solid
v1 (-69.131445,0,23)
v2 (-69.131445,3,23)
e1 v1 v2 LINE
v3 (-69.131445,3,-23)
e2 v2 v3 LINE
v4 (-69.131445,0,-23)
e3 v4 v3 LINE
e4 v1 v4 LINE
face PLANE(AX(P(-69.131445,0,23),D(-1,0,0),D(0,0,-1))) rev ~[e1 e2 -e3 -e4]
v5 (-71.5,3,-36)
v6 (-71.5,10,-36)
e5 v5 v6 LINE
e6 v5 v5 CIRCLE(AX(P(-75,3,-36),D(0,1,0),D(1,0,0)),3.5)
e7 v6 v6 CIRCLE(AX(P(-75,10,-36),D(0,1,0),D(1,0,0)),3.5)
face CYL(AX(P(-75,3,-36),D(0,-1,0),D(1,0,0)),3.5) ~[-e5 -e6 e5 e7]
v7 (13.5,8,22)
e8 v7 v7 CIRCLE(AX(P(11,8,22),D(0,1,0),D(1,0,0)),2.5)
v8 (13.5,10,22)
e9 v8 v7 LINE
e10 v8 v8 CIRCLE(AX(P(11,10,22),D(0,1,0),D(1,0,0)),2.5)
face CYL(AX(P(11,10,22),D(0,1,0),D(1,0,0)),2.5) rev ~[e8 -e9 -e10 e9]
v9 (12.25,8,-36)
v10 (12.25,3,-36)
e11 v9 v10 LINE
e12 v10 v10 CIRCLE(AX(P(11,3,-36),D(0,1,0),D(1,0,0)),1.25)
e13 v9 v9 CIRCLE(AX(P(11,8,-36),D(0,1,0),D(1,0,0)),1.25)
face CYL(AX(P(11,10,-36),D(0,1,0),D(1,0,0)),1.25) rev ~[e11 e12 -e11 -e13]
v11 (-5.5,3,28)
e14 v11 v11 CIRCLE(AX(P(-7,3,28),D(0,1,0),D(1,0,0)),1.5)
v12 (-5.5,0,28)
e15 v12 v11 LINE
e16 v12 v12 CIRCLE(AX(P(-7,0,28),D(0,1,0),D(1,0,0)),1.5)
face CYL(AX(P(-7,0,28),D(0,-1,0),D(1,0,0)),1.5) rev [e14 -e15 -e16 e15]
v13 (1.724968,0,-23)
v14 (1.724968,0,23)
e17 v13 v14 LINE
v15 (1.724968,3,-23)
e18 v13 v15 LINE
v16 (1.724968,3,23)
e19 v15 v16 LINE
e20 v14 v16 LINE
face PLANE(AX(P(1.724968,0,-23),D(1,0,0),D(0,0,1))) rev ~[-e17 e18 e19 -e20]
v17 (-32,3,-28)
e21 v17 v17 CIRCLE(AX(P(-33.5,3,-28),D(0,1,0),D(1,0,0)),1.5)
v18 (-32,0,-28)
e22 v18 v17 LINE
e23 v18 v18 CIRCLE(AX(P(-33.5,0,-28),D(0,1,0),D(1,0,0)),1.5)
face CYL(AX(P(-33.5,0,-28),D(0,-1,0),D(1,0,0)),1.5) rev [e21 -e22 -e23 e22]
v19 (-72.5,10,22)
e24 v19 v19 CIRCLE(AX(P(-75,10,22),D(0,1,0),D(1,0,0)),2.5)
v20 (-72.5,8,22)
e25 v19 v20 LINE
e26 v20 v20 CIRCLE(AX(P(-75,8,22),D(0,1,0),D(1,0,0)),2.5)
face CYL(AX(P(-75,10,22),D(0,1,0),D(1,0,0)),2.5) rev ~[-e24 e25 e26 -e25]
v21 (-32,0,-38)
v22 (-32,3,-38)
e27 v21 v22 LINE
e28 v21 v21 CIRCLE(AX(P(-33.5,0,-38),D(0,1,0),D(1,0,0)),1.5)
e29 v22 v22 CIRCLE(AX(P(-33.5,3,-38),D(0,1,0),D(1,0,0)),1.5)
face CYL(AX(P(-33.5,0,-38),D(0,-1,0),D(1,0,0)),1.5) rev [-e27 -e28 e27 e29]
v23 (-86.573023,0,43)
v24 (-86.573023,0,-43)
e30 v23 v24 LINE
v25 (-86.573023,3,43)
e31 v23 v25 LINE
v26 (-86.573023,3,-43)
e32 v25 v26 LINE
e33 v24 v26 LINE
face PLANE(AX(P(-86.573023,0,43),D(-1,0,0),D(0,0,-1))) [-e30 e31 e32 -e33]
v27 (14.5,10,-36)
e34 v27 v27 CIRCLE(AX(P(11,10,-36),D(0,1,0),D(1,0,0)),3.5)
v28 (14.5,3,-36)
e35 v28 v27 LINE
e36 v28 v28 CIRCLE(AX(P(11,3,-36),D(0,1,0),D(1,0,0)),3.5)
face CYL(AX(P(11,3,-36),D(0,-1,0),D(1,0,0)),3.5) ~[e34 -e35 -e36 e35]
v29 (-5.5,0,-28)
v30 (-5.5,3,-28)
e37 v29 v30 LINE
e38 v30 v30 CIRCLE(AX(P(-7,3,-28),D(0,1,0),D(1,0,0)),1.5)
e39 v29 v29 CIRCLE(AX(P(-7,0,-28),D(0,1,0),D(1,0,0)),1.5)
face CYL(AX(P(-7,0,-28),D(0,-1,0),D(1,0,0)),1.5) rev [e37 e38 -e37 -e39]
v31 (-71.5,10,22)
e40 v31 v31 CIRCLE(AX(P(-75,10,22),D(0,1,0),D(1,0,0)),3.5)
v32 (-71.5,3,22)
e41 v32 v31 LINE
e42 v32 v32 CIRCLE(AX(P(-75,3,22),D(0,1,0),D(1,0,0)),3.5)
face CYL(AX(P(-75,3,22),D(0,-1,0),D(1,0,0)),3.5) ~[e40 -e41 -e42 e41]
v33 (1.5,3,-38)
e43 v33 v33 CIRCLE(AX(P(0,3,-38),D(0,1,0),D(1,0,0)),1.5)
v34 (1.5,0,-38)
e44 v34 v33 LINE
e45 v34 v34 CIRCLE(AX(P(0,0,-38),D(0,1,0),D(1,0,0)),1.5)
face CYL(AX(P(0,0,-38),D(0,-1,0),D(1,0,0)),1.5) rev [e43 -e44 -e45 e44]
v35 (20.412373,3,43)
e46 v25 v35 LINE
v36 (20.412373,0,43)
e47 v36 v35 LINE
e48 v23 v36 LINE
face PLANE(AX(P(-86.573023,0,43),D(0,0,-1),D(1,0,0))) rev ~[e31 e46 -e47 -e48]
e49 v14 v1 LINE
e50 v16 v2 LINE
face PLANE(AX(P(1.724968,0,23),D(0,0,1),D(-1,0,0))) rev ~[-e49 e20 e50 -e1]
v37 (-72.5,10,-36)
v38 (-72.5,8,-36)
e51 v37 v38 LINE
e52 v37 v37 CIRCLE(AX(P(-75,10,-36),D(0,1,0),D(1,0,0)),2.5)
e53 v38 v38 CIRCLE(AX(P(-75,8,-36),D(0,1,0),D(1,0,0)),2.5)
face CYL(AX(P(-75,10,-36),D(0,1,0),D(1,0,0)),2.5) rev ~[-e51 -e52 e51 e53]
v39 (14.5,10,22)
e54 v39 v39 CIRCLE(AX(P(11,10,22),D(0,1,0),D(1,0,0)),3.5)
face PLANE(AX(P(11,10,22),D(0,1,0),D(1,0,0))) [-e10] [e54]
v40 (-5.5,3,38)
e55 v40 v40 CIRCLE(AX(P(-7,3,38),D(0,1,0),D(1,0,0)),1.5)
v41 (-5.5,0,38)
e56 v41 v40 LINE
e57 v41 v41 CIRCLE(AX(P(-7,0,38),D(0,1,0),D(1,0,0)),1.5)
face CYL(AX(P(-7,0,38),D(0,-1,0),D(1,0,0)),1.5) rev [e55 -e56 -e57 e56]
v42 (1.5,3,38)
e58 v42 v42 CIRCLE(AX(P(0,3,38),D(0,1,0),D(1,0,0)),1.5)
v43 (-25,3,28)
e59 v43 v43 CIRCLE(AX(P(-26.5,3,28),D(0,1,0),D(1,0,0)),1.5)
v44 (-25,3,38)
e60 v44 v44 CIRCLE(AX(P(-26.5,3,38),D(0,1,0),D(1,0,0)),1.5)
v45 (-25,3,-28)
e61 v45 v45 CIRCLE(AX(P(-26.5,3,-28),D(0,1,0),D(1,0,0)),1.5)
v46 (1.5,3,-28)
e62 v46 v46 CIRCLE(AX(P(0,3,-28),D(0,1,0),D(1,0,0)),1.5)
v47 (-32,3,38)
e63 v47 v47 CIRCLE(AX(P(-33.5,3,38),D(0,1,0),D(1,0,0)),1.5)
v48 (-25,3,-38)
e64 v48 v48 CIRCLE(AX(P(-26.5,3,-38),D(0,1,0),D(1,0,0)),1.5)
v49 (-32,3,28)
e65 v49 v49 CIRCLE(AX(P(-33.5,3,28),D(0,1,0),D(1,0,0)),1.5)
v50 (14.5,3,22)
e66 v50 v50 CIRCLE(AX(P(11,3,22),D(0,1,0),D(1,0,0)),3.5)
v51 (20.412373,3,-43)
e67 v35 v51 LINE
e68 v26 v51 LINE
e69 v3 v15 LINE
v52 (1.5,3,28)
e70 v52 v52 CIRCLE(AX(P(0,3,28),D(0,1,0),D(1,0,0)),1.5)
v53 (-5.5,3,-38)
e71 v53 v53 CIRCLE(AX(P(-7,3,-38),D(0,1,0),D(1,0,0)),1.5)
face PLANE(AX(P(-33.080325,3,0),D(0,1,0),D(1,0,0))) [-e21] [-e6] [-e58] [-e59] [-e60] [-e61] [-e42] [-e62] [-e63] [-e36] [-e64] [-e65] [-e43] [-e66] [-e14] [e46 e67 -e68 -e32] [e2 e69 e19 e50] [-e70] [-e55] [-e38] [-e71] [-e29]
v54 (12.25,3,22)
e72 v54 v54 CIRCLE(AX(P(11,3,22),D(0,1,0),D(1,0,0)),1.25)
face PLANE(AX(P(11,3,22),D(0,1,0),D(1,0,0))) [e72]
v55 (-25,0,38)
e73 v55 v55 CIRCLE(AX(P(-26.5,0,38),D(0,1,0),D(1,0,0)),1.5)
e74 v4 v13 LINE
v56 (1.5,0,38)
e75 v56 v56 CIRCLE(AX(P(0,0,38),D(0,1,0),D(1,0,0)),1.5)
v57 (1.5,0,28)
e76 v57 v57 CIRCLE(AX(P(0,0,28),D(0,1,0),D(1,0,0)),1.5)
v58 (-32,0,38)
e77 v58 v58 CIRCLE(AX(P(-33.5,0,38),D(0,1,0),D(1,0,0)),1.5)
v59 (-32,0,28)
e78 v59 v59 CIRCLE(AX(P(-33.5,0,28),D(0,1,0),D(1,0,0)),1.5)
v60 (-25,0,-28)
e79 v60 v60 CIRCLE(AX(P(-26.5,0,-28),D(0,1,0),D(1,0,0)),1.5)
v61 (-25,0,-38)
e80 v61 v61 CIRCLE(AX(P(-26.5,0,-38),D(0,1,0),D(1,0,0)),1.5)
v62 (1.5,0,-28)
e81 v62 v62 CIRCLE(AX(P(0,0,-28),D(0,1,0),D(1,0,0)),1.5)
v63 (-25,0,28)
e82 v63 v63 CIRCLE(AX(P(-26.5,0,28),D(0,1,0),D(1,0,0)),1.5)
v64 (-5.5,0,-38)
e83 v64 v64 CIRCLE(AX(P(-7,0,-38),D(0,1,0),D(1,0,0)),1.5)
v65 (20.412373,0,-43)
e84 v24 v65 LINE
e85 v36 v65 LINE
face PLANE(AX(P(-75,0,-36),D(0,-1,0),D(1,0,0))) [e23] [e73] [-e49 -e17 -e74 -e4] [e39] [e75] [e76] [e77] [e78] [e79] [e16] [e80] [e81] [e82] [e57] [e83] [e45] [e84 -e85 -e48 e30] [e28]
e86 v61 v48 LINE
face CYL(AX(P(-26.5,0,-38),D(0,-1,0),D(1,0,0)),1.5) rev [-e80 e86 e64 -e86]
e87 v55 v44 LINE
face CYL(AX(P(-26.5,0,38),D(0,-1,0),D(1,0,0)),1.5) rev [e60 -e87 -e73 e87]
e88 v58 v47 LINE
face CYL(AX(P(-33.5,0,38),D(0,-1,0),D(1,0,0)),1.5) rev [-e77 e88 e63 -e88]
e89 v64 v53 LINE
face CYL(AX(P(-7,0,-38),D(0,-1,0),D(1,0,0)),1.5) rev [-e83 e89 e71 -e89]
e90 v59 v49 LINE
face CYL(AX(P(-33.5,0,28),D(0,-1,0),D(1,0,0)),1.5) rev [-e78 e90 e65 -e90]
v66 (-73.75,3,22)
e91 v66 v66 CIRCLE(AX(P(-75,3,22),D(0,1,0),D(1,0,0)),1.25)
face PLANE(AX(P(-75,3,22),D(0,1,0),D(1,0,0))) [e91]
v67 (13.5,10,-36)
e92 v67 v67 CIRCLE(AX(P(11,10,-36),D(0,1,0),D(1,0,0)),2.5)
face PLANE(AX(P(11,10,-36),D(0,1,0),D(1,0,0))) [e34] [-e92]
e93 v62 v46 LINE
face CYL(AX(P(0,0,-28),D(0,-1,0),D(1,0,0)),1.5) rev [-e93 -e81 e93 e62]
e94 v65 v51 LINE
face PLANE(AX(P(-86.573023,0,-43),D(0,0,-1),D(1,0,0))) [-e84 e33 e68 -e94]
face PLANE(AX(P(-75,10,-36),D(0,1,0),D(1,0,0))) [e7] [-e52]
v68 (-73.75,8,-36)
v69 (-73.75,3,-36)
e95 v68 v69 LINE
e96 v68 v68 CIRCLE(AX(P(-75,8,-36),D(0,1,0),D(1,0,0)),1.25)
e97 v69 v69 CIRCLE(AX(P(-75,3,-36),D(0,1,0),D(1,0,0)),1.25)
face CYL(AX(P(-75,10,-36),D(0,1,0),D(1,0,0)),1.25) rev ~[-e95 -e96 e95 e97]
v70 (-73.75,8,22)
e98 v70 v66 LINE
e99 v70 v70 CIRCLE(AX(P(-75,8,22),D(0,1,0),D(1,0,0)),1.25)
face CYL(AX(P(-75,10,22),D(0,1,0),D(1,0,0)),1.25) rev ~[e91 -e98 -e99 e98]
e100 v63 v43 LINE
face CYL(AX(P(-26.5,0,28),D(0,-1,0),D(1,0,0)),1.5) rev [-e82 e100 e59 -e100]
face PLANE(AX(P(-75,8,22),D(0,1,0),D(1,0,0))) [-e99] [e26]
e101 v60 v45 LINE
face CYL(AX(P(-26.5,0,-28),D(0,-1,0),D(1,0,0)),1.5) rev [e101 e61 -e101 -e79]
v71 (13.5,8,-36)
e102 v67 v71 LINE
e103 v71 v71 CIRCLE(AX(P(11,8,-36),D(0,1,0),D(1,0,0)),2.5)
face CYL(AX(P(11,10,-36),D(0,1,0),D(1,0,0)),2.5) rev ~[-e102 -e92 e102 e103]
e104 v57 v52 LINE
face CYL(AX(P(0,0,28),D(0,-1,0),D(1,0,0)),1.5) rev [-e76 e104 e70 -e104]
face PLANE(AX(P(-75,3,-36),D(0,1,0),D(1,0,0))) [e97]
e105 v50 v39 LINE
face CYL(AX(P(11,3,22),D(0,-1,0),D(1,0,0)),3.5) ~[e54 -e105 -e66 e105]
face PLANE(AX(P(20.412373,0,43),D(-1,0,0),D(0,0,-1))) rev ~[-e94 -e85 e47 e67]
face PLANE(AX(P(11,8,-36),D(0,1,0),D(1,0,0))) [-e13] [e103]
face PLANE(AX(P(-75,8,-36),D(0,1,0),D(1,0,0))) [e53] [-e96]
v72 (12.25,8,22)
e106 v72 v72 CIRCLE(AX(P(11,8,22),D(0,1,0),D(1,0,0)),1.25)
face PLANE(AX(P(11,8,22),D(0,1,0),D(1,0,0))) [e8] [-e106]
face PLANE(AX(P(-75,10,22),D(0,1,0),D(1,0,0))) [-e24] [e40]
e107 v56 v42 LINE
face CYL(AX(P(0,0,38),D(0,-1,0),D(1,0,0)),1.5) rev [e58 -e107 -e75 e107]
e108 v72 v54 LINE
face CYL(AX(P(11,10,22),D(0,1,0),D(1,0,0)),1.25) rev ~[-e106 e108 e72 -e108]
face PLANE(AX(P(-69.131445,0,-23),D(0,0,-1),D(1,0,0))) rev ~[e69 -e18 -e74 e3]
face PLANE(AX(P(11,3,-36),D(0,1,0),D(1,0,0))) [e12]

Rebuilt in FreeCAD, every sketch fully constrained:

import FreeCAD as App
import Part
import Sketcher

V = App.Vector
Q = App.Units.Quantity


def add_polygon(sketch, points):
    """Adds a closed chain of lines whose ends are joined by coincident constraints."""
    first, n = sketch.GeometryCount, len(points)
    for a, b in zip(points, points[1:] + points[:1]):
        sketch.addGeometry(Part.LineSegment(App.Vector(*a, 0), App.Vector(*b, 0)), False)
    for i in range(n):
        sketch.addConstraint(Sketcher.Constraint("Coincident", first + i, 2, first + (i + 1) % n, 1))

doc = App.newDocument("Part")
body = doc.addObject("PartDesign::Body", "Body")

sketch1 = body.newObject("Sketcher::SketchObject", "Sketch")
sketch1.AttachmentSupport = (doc.getObject("XZ_Plane"), [""])
sketch1.MapMode = "FlatFace"
add_polygon(sketch1, [(-86.573023, -43), (-86.573023, 43), (20.412373, 43), (20.412373, -43)])
sketch1.addGeometry(Part.Circle(V(-75, 22, 0), V(0, 0, 1), 3.5), False)
sketch1.addGeometry(Part.Circle(V(-33.5, 38, 0), V(0, 0, 1), 1.5), False)
sketch1.addGeometry(Part.Circle(V(-33.5, 28, 0), V(0, 0, 1), 1.5), False)
sketch1.addGeometry(Part.Circle(V(-26.5, 38, 0), V(0, 0, 1), 1.5), False)
sketch1.addGeometry(Part.Circle(V(-26.5, 28, 0), V(0, 0, 1), 1.5), False)
sketch1.addGeometry(Part.Circle(V(-7, 38, 0), V(0, 0, 1), 1.5), False)
sketch1.addGeometry(Part.Circle(V(0, 38, 0), V(0, 0, 1), 1.5), False)
sketch1.addGeometry(Part.Circle(V(-7, 28, 0), V(0, 0, 1), 1.5), False)
sketch1.addGeometry(Part.Circle(V(0, 28, 0), V(0, 0, 1), 1.5), False)
sketch1.addGeometry(Part.Circle(V(11, 22, 0), V(0, 0, 1), 3.5), False)
add_polygon(sketch1, [(-69.131445, -23), (1.724968, -23), (1.724968, 23), (-69.131445, 23)])
sketch1.addGeometry(Part.Circle(V(-75, -36, 0), V(0, 0, 1), 3.5), False)
sketch1.addGeometry(Part.Circle(V(-33.5, -28, 0), V(0, 0, 1), 1.5), False)
sketch1.addGeometry(Part.Circle(V(-33.5, -38, 0), V(0, 0, 1), 1.5), False)
sketch1.addGeometry(Part.Circle(V(-26.5, -28, 0), V(0, 0, 1), 1.5), False)
sketch1.addGeometry(Part.Circle(V(-26.5, -38, 0), V(0, 0, 1), 1.5), False)
sketch1.addGeometry(Part.Circle(V(-7, -28, 0), V(0, 0, 1), 1.5), False)
sketch1.addGeometry(Part.Circle(V(0, -28, 0), V(0, 0, 1), 1.5), False)
sketch1.addGeometry(Part.Circle(V(-7, -38, 0), V(0, 0, 1), 1.5), False)
sketch1.addGeometry(Part.Circle(V(0, -38, 0), V(0, 0, 1), 1.5), False)
sketch1.addGeometry(Part.Circle(V(11, -36, 0), V(0, 0, 1), 3.5), False)
sketch1.addConstraint([
    Sketcher.Constraint("Vertical", 0),
    Sketcher.Constraint("Horizontal", 1),
    Sketcher.Constraint("Vertical", 2),
    Sketcher.Constraint("Horizontal", 3),
    Sketcher.Constraint("Horizontal", 14),
    Sketcher.Constraint("Vertical", 15),
    Sketcher.Constraint("Horizontal", 16),
    Sketcher.Constraint("Vertical", 17),
    Sketcher.Constraint("Equal", 5, 6),
    Sketcher.Constraint("Equal", 6, 7),
    Sketcher.Constraint("Equal", 7, 8),
    Sketcher.Constraint("Equal", 8, 9),
    Sketcher.Constraint("Equal", 9, 10),
    Sketcher.Constraint("Equal", 10, 11),
    Sketcher.Constraint("Equal", 11, 12),
    Sketcher.Constraint("Equal", 4, 13),
    Sketcher.Constraint("Equal", 13, 18),
    Sketcher.Constraint("Equal", 12, 19),
    Sketcher.Constraint("Equal", 19, 20),
    Sketcher.Constraint("Equal", 20, 21),
    Sketcher.Constraint("Equal", 21, 22),
    Sketcher.Constraint("Equal", 22, 23),
    Sketcher.Constraint("Equal", 23, 24),
    Sketcher.Constraint("Equal", 24, 25),
    Sketcher.Constraint("Equal", 25, 26),
    Sketcher.Constraint("Equal", 18, 27),
    Sketcher.Constraint("Symmetric", 12, 3, 24, 3, -1, 1),
    Sketcher.Constraint("Symmetric", 10, 3, 26, 3, -1, 1),
    Sketcher.Constraint("Symmetric", 6, 3, 19, 3, -1),
    Sketcher.Constraint("Symmetric", 5, 3, 20, 3, -1),
    Sketcher.Constraint("Symmetric", 8, 3, 21, 3, -1),
    Sketcher.Constraint("Symmetric", 7, 3, 22, 3, -1),
    Sketcher.Constraint("Symmetric", 11, 3, 23, 3, -1),
    Sketcher.Constraint("Symmetric", 9, 3, 25, 3, -1),
    Sketcher.Constraint("PointOnObject", 10, 3, -2),
    Sketcher.Constraint("PointOnObject", 12, 3, -2),
    Sketcher.Constraint("Horizontal", 5, 3, 7, 3),
    Sketcher.Constraint("Horizontal", 6, 3, 8, 3),
    Sketcher.Constraint("Horizontal", 7, 3, 9, 3),
    Sketcher.Constraint("Horizontal", 9, 3, 10, 3),
    Sketcher.Constraint("Horizontal", 8, 3, 11, 3),
    Sketcher.Constraint("Horizontal", 11, 3, 12, 3),
    Sketcher.Constraint("Horizontal", 4, 3, 13, 3),
    Sketcher.Constraint("Horizontal", 18, 3, 27, 3),
    Sketcher.Constraint("Vertical", 5, 3, 6, 3),
    Sketcher.Constraint("Vertical", 7, 3, 8, 3),
    Sketcher.Constraint("Vertical", 9, 3, 11, 3),
    Sketcher.Constraint("Vertical", 4, 3, 18, 3),
    Sketcher.Constraint("Vertical", 13, 3, 27, 3),
    Sketcher.Constraint("Diameter", 4, Q("7 mm")),
    Sketcher.Constraint("Diameter", 5, Q("3 mm")),
    Sketcher.Constraint("DistanceY", 0, 1, 0, 2, Q("86 mm")),
    Sketcher.Constraint("DistanceY", 15, 1, 15, 2, Q("46 mm")),
    Sketcher.Constraint("DistanceX", 4, 3, -1, 1, Q("75 mm")),
    Sketcher.Constraint("DistanceY", -1, 1, 4, 3, Q("22 mm")),
    Sketcher.Constraint("DistanceY", -1, 1, 5, 3, Q("38 mm")),
    Sketcher.Constraint("DistanceY", -1, 1, 6, 3, Q("28 mm")),
    Sketcher.Constraint("DistanceX", 9, 3, -1, 1, Q("7 mm")),
    Sketcher.Constraint("DistanceX", -1, 1, 13, 3, Q("11 mm")),
    Sketcher.Constraint("DistanceY", 18, 3, -1, 1, Q("36 mm")),
    Sketcher.Constraint("DistanceY", -1, 1, 0, 2, Q("43 mm")),
    Sketcher.Constraint("DistanceY", 14, 2, -1, 1, Q("23 mm")),
    Sketcher.Constraint("DistanceX", 5, 3, 7, 3, Q("7 mm")),
    Sketcher.Constraint("DistanceX", 5, 3, -1, 1, Q("33.5 mm")),
    Sketcher.Constraint("DistanceX", 1, 1, 1, 2, Q("106.985397 mm")),
    Sketcher.Constraint("DistanceX", 14, 1, 14, 2, Q("70.856413 mm")),
    Sketcher.Constraint("DistanceX", 0, 2, 16, 2, Q("17.441578 mm")),
    Sketcher.Constraint("DistanceX", 0, 2, -1, 1, Q("86.573023 mm")),
])
pad1 = body.newObject("PartDesign::Pad", "Pad")
pad1.Profile = sketch1
pad1.Length = 3
pad1.Reversed = True
body2 = doc.addObject("PartDesign::Body", "Body001")

sketch2 = body2.newObject("Sketcher::SketchObject", "Sketch001")
sketch2.AttachmentSupport = (doc.getObject("XZ_Plane001"), [""])
sketch2.MapMode = "FlatFace"
sketch2.AttachmentOffset = App.Placement(V(0, 0, -3), App.Rotation())
sketch2.addGeometry(Part.Circle(V(-75, 22, 0), V(0, 0, 1), 3.5), False)
sketch2.addConstraint([
    Sketcher.Constraint("Diameter", 0, Q("7 mm")),
    Sketcher.Constraint("DistanceX", 0, 3, -1, 1, Q("75 mm")),
    Sketcher.Constraint("DistanceY", -1, 1, 0, 3, Q("22 mm")),
])
pad2 = body2.newObject("PartDesign::Pad", "Pad001")
pad2.Profile = sketch2
pad2.Length = 7
pad2.Reversed = True
body3 = doc.addObject("PartDesign::Body", "Body002")

sketch3 = body3.newObject("Sketcher::SketchObject", "Sketch002")
sketch3.AttachmentSupport = (doc.getObject("XZ_Plane002"), [""])
sketch3.MapMode = "FlatFace"
sketch3.AttachmentOffset = App.Placement(V(0, 0, -3), App.Rotation())
sketch3.addGeometry(Part.Circle(V(11, 22, 0), V(0, 0, 1), 3.5), False)
sketch3.addConstraint([
    Sketcher.Constraint("Diameter", 0, Q("7 mm")),
    Sketcher.Constraint("DistanceX", -1, 1, 0, 3, Q("11 mm")),
    Sketcher.Constraint("DistanceY", -1, 1, 0, 3, Q("22 mm")),
])
pad3 = body3.newObject("PartDesign::Pad", "Pad002")
pad3.Profile = sketch3
pad3.Length = 7
pad3.Reversed = True
body4 = doc.addObject("PartDesign::Body", "Body003")

sketch4 = body4.newObject("Sketcher::SketchObject", "Sketch003")
sketch4.AttachmentSupport = (doc.getObject("XZ_Plane003"), [""])
sketch4.MapMode = "FlatFace"
sketch4.AttachmentOffset = App.Placement(V(0, 0, -3), App.Rotation())
sketch4.addGeometry(Part.Circle(V(11, -36, 0), V(0, 0, 1), 3.5), False)
sketch4.addConstraint([
    Sketcher.Constraint("Diameter", 0, Q("7 mm")),
    Sketcher.Constraint("DistanceX", -1, 1, 0, 3, Q("11 mm")),
    Sketcher.Constraint("DistanceY", 0, 3, -1, 1, Q("36 mm")),
])
pad4 = body4.newObject("PartDesign::Pad", "Pad003")
pad4.Profile = sketch4
pad4.Length = 7
pad4.Reversed = True
body5 = doc.addObject("PartDesign::Body", "Body004")

sketch5 = body5.newObject("Sketcher::SketchObject", "Sketch004")
sketch5.AttachmentSupport = (doc.getObject("XZ_Plane004"), [""])
sketch5.MapMode = "FlatFace"
sketch5.AttachmentOffset = App.Placement(V(0, 0, -3), App.Rotation())
sketch5.addGeometry(Part.Circle(V(-75, -36, 0), V(0, 0, 1), 3.5), False)
sketch5.addConstraint([
    Sketcher.Constraint("Diameter", 0, Q("7 mm")),
    Sketcher.Constraint("DistanceX", 0, 3, -1, 1, Q("75 mm")),
    Sketcher.Constraint("DistanceY", 0, 3, -1, 1, Q("36 mm")),
])
pad5 = body5.newObject("PartDesign::Pad", "Pad004")
pad5.Profile = sketch5
pad5.Length = 7
pad5.Reversed = True
body.AllowCompound = True
doc.recompute()

boolean = body.newObject("PartDesign::Boolean", "Boolean")
boolean.Type = "Fuse"
boolean.addObjects([body2])
doc.recompute()

boolean2 = body.newObject("PartDesign::Boolean", "Boolean001")
boolean2.Type = "Fuse"
boolean2.addObjects([body3])
doc.recompute()

boolean3 = body.newObject("PartDesign::Boolean", "Boolean002")
boolean3.Type = "Fuse"
boolean3.addObjects([body4])
doc.recompute()

boolean4 = body.newObject("PartDesign::Boolean", "Boolean003")
boolean4.Type = "Fuse"
boolean4.addObjects([body5])

sketch6 = body.newObject("Sketcher::SketchObject", "Sketch005")
sketch6.AttachmentSupport = (doc.getObject("XZ_Plane"), [""])
sketch6.MapMode = "FlatFace"
sketch6.AttachmentOffset = App.Placement(V(0, 0, -3), App.Rotation())
sketch6.addGeometry([
    Part.Circle(V(-75, -36, 0), V(0, 0, 1), 3.5),
    Part.Circle(V(11, -36, 0), V(0, 0, 1), 3.5),
    Part.Circle(V(11, 22, 0), V(0, 0, 1), 3.5),
    Part.Circle(V(-75, 22, 0), V(0, 0, 1), 3.5),
], False)
sketch6.addConstraint([
    Sketcher.Constraint("Equal", 0, 1),
    Sketcher.Constraint("Equal", 1, 2),
    Sketcher.Constraint("Equal", 2, 3),
    Sketcher.Constraint("Horizontal", 0, 3, 1, 3),
    Sketcher.Constraint("Horizontal", 2, 3, 3, 3),
    Sketcher.Constraint("Vertical", 1, 3, 2, 3),
    Sketcher.Constraint("Vertical", 0, 3, 3, 3),
    Sketcher.Constraint("Diameter", 0, Q("7 mm")),
    Sketcher.Constraint("DistanceX", 0, 3, -1, 1, Q("75 mm")),
    Sketcher.Constraint("DistanceY", 0, 3, -1, 1, Q("36 mm")),
    Sketcher.Constraint("DistanceX", -1, 1, 1, 3, Q("11 mm")),
    Sketcher.Constraint("DistanceY", -1, 1, 2, 3, Q("22 mm")),
])
pad6 = body.newObject("PartDesign::Pad", "Pad005")
pad6.Profile = sketch6
pad6.Length = 3

sketch7 = body.newObject("Sketcher::SketchObject", "Sketch006")
sketch7.AttachmentSupport = (doc.getObject("XZ_Plane"), [""])
sketch7.MapMode = "FlatFace"
sketch7.AttachmentOffset = App.Placement(V(0, 0, -10), App.Rotation())
sketch7.addGeometry([
    Part.Circle(V(11, -36, 0), V(0, 0, 1), 1.25),
    Part.Circle(V(11, 22, 0), V(0, 0, 1), 1.25),
    Part.Circle(V(-75, 22, 0), V(0, 0, 1), 1.25),
    Part.Circle(V(-75, -36, 0), V(0, 0, 1), 1.25),
], False)
sketch7.addConstraint([
    Sketcher.Constraint("Equal", 0, 1),
    Sketcher.Constraint("Equal", 1, 2),
    Sketcher.Constraint("Equal", 2, 3),
    Sketcher.Constraint("Horizontal", 1, 3, 2, 3),
    Sketcher.Constraint("Horizontal", 0, 3, 3, 3),
    Sketcher.Constraint("Vertical", 0, 3, 1, 3),
    Sketcher.Constraint("Vertical", 2, 3, 3, 3),
    Sketcher.Constraint("Diameter", 0, Q("2.5 mm")),
    Sketcher.Constraint("DistanceX", -1, 1, 0, 3, Q("11 mm")),
    Sketcher.Constraint("DistanceY", 0, 3, -1, 1, Q("36 mm")),
    Sketcher.Constraint("DistanceY", -1, 1, 1, 3, Q("22 mm")),
    Sketcher.Constraint("DistanceX", 2, 3, -1, 1, Q("75 mm")),
])
pocket1 = body.newObject("PartDesign::Pocket", "Pocket")
pocket1.Profile = sketch7
pocket1.Length = 7
pocket1.Reversed = True

sketch8 = body.newObject("Sketcher::SketchObject", "Sketch007")
sketch8.AttachmentSupport = (doc.getObject("XZ_Plane"), [""])
sketch8.MapMode = "FlatFace"
sketch8.AttachmentOffset = App.Placement(V(0, 0, -10), App.Rotation())
sketch8.addGeometry([
    Part.Circle(V(-75, -36, 0), V(0, 0, 1), 2.5),
    Part.Circle(V(11, -36, 0), V(0, 0, 1), 2.5),
    Part.Circle(V(-75, 22, 0), V(0, 0, 1), 2.5),
    Part.Circle(V(11, 22, 0), V(0, 0, 1), 2.5),
], False)
sketch8.addConstraint([
    Sketcher.Constraint("Equal", 0, 1),
    Sketcher.Constraint("Equal", 1, 2),
    Sketcher.Constraint("Equal", 2, 3),
    Sketcher.Constraint("Horizontal", 0, 3, 1, 3),
    Sketcher.Constraint("Horizontal", 2, 3, 3, 3),
    Sketcher.Constraint("Vertical", 0, 3, 2, 3),
    Sketcher.Constraint("Vertical", 1, 3, 3, 3),
    Sketcher.Constraint("Diameter", 0, Q("5 mm")),
    Sketcher.Constraint("DistanceX", 0, 3, -1, 1, Q("75 mm")),
    Sketcher.Constraint("DistanceY", 0, 3, -1, 1, Q("36 mm")),
    Sketcher.Constraint("DistanceX", -1, 1, 1, 3, Q("11 mm")),
    Sketcher.Constraint("DistanceY", -1, 1, 2, 3, Q("22 mm")),
])
pocket2 = body.newObject("PartDesign::Pocket", "Pocket001")
pocket2.Profile = sketch8
pocket2.Length = 2
pocket2.Reversed = True

doc.recompute()
